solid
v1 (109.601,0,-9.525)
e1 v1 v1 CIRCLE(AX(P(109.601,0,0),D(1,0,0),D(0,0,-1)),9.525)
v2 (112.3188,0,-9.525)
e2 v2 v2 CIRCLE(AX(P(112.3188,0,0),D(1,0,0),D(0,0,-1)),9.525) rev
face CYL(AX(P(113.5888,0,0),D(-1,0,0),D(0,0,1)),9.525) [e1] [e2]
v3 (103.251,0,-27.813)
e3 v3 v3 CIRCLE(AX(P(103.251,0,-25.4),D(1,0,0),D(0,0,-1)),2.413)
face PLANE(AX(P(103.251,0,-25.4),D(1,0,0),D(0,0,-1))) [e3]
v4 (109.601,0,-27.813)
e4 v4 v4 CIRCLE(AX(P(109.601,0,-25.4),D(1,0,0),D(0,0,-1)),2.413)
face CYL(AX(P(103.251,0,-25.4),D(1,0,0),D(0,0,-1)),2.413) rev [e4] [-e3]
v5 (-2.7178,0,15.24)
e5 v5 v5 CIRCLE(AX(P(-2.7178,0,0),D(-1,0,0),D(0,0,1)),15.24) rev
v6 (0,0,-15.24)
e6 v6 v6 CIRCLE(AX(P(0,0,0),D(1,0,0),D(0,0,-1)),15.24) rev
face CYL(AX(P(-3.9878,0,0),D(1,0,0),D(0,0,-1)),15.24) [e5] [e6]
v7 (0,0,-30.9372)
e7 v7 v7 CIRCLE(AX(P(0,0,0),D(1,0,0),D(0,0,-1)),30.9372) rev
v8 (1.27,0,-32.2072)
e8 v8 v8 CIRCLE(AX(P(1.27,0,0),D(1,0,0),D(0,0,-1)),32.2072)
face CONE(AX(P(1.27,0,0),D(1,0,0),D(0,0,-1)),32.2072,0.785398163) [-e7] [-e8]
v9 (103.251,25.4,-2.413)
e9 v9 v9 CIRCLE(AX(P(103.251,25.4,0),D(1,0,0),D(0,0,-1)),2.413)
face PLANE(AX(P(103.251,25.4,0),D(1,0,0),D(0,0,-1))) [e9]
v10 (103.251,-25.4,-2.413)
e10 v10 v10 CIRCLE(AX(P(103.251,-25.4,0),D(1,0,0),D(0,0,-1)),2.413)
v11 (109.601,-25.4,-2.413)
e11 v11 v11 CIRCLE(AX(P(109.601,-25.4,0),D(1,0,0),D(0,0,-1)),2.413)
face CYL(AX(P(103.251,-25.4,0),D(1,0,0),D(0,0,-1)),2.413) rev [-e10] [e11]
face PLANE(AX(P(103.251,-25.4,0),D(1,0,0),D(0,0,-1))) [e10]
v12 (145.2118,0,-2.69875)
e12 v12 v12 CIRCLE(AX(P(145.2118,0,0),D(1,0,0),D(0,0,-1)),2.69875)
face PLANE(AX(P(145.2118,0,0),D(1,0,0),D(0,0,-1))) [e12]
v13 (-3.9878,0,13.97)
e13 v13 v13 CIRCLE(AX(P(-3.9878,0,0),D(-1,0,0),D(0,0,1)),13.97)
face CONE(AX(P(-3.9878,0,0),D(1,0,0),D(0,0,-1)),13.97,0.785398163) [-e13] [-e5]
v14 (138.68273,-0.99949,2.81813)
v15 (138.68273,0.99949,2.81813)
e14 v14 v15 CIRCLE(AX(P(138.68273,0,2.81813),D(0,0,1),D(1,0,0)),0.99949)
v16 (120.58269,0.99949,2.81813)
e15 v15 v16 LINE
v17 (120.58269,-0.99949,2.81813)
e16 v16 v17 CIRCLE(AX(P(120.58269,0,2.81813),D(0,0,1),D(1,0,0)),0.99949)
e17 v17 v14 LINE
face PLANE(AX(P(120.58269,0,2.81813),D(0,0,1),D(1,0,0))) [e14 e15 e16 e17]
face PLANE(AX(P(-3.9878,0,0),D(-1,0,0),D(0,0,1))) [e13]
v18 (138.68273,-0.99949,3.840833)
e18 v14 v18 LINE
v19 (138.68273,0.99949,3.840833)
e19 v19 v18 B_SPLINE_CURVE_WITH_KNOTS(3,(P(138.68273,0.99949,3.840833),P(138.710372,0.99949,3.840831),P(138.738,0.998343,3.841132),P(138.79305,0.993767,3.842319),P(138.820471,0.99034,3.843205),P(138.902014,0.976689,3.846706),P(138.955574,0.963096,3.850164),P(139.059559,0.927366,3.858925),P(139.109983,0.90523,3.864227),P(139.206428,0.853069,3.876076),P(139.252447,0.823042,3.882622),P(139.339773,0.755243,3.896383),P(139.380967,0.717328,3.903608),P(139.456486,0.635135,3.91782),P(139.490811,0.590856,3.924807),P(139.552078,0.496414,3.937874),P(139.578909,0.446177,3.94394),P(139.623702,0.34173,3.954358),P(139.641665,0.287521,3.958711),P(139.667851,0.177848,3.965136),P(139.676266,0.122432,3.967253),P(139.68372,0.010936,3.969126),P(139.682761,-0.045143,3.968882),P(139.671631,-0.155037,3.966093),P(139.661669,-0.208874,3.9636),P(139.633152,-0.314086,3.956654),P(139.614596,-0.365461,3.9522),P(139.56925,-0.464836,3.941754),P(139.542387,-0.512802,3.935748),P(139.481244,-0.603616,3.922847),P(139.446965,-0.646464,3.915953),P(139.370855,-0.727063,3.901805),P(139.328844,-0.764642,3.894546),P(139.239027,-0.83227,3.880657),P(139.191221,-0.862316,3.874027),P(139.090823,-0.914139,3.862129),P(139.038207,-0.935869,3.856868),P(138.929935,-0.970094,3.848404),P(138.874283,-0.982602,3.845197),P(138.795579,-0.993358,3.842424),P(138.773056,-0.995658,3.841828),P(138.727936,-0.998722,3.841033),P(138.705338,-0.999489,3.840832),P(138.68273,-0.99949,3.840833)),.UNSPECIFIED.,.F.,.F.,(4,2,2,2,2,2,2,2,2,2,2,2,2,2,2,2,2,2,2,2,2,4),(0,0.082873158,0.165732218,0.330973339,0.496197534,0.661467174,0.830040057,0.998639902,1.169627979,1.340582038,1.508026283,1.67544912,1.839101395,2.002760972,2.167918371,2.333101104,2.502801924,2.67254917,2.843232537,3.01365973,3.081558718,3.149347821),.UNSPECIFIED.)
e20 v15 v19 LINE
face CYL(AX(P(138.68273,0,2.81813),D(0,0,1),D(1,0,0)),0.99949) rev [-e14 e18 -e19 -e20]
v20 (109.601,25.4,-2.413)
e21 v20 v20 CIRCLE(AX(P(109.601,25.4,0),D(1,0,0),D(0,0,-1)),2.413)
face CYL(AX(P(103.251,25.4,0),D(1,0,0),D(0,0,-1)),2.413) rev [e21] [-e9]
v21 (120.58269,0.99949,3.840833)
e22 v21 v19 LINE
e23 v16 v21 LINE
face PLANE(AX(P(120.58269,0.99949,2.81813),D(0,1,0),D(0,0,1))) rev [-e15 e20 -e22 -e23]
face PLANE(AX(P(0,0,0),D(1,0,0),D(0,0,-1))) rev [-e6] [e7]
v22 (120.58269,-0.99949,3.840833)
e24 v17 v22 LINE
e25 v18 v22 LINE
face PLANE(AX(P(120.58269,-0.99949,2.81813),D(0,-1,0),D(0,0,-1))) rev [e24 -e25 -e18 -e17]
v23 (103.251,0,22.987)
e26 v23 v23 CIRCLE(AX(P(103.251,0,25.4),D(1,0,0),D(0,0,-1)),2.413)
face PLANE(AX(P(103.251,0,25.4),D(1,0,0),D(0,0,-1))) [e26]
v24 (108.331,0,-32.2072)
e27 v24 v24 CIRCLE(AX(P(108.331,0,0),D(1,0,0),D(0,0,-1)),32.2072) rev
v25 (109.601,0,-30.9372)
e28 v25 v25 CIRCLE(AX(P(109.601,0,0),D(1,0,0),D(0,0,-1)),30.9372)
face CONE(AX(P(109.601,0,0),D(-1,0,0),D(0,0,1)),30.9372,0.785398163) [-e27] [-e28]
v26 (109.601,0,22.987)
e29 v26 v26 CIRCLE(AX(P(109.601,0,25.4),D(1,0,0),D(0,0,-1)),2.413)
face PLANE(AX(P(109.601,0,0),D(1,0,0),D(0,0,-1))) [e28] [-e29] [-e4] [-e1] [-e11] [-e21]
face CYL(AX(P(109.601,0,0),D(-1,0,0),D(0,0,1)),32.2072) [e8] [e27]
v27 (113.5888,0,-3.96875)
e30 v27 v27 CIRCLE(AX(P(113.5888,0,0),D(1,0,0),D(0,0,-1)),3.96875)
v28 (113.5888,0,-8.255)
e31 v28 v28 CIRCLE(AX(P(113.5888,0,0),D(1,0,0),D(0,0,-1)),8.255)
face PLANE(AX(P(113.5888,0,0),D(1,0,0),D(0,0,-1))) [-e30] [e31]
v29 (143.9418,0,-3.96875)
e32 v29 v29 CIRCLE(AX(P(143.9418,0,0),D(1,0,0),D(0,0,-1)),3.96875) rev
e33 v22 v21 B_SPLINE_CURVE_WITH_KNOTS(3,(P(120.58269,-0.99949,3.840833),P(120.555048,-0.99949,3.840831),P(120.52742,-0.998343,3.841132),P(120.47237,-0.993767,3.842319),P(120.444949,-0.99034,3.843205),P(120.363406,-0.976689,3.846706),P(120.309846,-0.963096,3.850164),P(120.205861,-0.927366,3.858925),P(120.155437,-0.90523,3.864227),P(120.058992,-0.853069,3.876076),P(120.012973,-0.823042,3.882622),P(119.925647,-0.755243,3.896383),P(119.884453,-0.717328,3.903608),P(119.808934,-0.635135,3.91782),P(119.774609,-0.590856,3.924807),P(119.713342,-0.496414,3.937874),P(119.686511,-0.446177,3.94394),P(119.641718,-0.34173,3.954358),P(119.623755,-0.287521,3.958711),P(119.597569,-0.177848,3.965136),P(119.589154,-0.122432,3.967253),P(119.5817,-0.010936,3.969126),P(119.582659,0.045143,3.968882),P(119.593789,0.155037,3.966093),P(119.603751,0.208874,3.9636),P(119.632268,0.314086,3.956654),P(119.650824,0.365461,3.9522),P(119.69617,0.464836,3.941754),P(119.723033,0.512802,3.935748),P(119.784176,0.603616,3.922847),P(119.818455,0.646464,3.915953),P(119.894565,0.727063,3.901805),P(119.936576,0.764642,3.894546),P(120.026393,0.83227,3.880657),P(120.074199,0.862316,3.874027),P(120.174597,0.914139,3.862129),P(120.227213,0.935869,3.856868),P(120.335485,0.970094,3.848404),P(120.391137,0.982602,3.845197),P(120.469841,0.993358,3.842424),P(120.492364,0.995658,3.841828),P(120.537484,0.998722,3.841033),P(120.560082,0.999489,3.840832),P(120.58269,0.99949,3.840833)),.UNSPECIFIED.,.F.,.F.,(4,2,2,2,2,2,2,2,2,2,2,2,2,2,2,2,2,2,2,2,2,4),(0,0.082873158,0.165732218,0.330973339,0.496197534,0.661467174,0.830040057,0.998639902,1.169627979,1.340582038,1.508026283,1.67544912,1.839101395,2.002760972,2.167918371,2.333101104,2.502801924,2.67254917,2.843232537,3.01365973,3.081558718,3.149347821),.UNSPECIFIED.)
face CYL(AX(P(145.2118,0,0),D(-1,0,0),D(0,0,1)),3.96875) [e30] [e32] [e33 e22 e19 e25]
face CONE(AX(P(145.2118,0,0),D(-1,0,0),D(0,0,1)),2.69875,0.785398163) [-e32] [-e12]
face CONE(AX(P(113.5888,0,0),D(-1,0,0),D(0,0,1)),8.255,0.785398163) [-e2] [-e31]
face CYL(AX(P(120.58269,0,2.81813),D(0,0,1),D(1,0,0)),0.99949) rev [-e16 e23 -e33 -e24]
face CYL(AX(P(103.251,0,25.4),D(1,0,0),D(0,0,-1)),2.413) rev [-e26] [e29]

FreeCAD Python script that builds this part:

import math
import FreeCAD as App
import Part
import Sketcher
Q = App.Units.Quantity


def edges_at(feature, points):
    """Names of the edges that pass closest to the given points."""
    edges = feature.Shape.Edges
    near = lambda p: min(range(len(edges)), key=lambda i: edges[i].distToShape(Part.Vertex(*p))[0])
    return sorted({f"Edge{near(p) + 1}" for p in points})

doc = App.newDocument("Part")
body = doc.addObject("PartDesign::Body", "Body")

# Sketch on YZ plane
sketch1 = body.newObject("Sketcher::SketchObject", "Sketch")
sketch1.AttachmentSupport = (doc.getObject("YZ_Plane"), [""])
sketch1.MapMode = "FlatFace"
sketch1.addGeometry(Part.Circle(App.Vector(0, 0, 0), App.Vector(0, 0, 1), 32), False)
sketch1.addConstraint(Sketcher.Constraint("Coincident", 0, 3, -1, 1))
sketch1.addConstraint(Sketcher.Constraint("Diameter", 0, Q("2.536 in")))
pad1 = body.newObject("PartDesign::Pad", "Pad")
pad1.Profile = sketch1
pad1.Length = Q("4.315 in")
doc.recompute()

chamfer = body.newObject("PartDesign::Chamfer", "Chamfer")
chamfer.Base = (pad1, edges_at(pad1, [(0, 0, 32.207)]))
chamfer.Size = Q("0.05 in")
doc.recompute()

chamfer2 = body.newObject("PartDesign::Chamfer", "Chamfer001")
chamfer2.Base = (chamfer, edges_at(chamfer, [(109.601, 0, 32.207)]))
chamfer2.Size = Q("0.05 in")

# Sketch on YZ plane
sketch2 = body.newObject("Sketcher::SketchObject", "Sketch001")
sketch2.AttachmentSupport = (doc.getObject("YZ_Plane"), [""])
sketch2.MapMode = "FlatFace"
sketch2.AttachmentOffset = App.Placement(App.Vector(0, 0, 4.315 * 25.4), App.Rotation())
sketch2.addGeometry(Part.Circle(App.Vector(0, 0, 0), App.Vector(0, 0, 1), 10), False)
sketch2.addConstraint(Sketcher.Constraint("Coincident", 0, 3, -1, 1))
sketch2.addConstraint(Sketcher.Constraint("Diameter", 0, Q("0.75 in")))
pad2 = body.newObject("PartDesign::Pad", "Pad001")
pad2.Profile = sketch2
pad2.Length = Q("0.157 in")

# Sketch on YZ plane
sketch3 = body.newObject("Sketcher::SketchObject", "Sketch002")
sketch3.AttachmentSupport = (doc.getObject("YZ_Plane"), [""])
sketch3.MapMode = "FlatFace"
sketch3.AttachmentOffset = App.Placement(App.Vector(0, 0, 4.472 * 25.4), App.Rotation())
sketch3.addGeometry(Part.Circle(App.Vector(0, 0, 0), App.Vector(0, 0, 1), 4), False)
sketch3.addConstraint(Sketcher.Constraint("Coincident", 0, 3, -1, 1))
sketch3.addConstraint(Sketcher.Constraint("Diameter", 0, Q("0.3125 in")))
pad3 = body.newObject("PartDesign::Pad", "Pad002")
pad3.Profile = sketch3
pad3.Length = Q("1.245 in")
doc.recompute()

chamfer3 = body.newObject("PartDesign::Chamfer", "Chamfer002")
chamfer3.Base = (pad3, edges_at(pad3, [(113.589, 0, 9.525)]))
chamfer3.Size = Q("0.05 in")
doc.recompute()

chamfer4 = body.newObject("PartDesign::Chamfer", "Chamfer003")
chamfer4.Base = (chamfer3, edges_at(chamfer3, [(145.212, 0, 3.969)]))
chamfer4.Size = Q("0.05 in")

# Sketch on YZ plane
sketch4 = body.newObject("Sketcher::SketchObject", "Sketch003")
sketch4.AttachmentSupport = (doc.getObject("YZ_Plane"), [""])
sketch4.MapMode = "FlatFace"
sketch4.addGeometry(Part.Circle(App.Vector(0, 0, 0), App.Vector(0, 0, 1), 15), False)
sketch4.addConstraint(Sketcher.Constraint("Coincident", 0, 3, -1, 1))
sketch4.addConstraint(Sketcher.Constraint("Diameter", 0, Q("1.2 in")))
pad4 = body.newObject("PartDesign::Pad", "Pad003")
pad4.Profile = sketch4
pad4.Length = Q("0.157 in")
pad4.Reversed = True
doc.recompute()

chamfer5 = body.newObject("PartDesign::Chamfer", "Chamfer004")
chamfer5.Base = (pad4, edges_at(pad4, [(-3.988, 0, -15.24)]))
chamfer5.Size = Q("0.05 in")

# Sketch on XY plane
sketch5 = body.newObject("Sketcher::SketchObject", "Sketch004")
sketch5.AttachmentSupport = (doc.getObject("XY_Plane"), [""])
sketch5.MapMode = "FlatFace"
sketch5.AttachmentOffset = App.Placement(App.Vector(0, 0, 0.15625 * 25.4), App.Rotation())
sketch5.addGeometry(Part.LineSegment(App.Vector(138.7, 1, 0), App.Vector(120.6, 1, 0)), False)
sketch5.addGeometry(Part.ArcOfCircle(Part.Circle(App.Vector(120.6, 0, 0), App.Vector(0, 0, 1), 1), math.radians(90), math.radians(270)), False)
sketch5.addGeometry(Part.LineSegment(App.Vector(120.6, -1, 0), App.Vector(138.7, -1, 0)), False)
sketch5.addGeometry(Part.ArcOfCircle(Part.Circle(App.Vector(138.7, 0, 0), App.Vector(0, 0, 1), 1), math.radians(-90), math.radians(90)), False)
sketch5.addConstraint(Sketcher.Constraint("Tangent", 0, 2, 1, 1))
sketch5.addConstraint(Sketcher.Constraint("Tangent", 1, 2, 2, 1))
sketch5.addConstraint(Sketcher.Constraint("Tangent", 2, 2, 3, 1))
sketch5.addConstraint(Sketcher.Constraint("Tangent", 3, 2, 0, 1))
sketch5.addConstraint(Sketcher.Constraint("Horizontal", 0))
sketch5.addConstraint(Sketcher.Constraint("Horizontal", 2))
sketch5.addConstraint(Sketcher.Constraint("PointOnObject", 1, 3, -1))
sketch5.addConstraint(Sketcher.Constraint("DistanceX", 0, 2, 0, 1, Q("0.7126 in")))
sketch5.addConstraint(Sketcher.Constraint("Radius", 1, 0.99949))
sketch5.addConstraint(Sketcher.Constraint("DistanceX", -1, 1, 1, 3, 120.58269))
pocket1 = body.newObject("PartDesign::Pocket", "Pocket")
pocket1.Profile = sketch5
pocket1.Length = Q("0.0453 in")

# Sketch on YZ plane
sketch6 = body.newObject("Sketcher::SketchObject", "Sketch005")
sketch6.AttachmentSupport = (doc.getObject("YZ_Plane"), [""])
sketch6.MapMode = "FlatFace"
sketch6.AttachmentOffset = App.Placement(App.Vector(0, 0, 4.315 * 25.4), App.Rotation())
sketch6.addGeometry(Part.Circle(App.Vector(25.4, 0, 0), App.Vector(0, 0, 1), 2.4), False)
sketch6.addGeometry(Part.Circle(App.Vector(0, -25.4, 0), App.Vector(0, 0, 1), 2.4), False)
sketch6.addGeometry(Part.Circle(App.Vector(-25.4, 0, 0), App.Vector(0, 0, 1), 2.4), False)
sketch6.addGeometry(Part.Circle(App.Vector(0, 25.4, 0), App.Vector(0, 0, 1), 2.4), False)
sketch6.addConstraint(Sketcher.Constraint("Equal", 0, 1))
sketch6.addConstraint(Sketcher.Constraint("Equal", 1, 2))
sketch6.addConstraint(Sketcher.Constraint("Equal", 2, 3))
sketch6.addConstraint(Sketcher.Constraint("Symmetric", 0, 3, 2, 3, -1, 1))
sketch6.addConstraint(Sketcher.Constraint("Symmetric", 1, 3, 3, 3, -1, 1))
sketch6.addConstraint(Sketcher.Constraint("PointOnObject", 0, 3, -1))
sketch6.addConstraint(Sketcher.Constraint("PointOnObject", 1, 3, -2))
sketch6.addConstraint(Sketcher.Constraint("Diameter", 0, Q("0.19 in")))
sketch6.addConstraint(Sketcher.Constraint("DistanceX", -1, 1, 0, 3, Q("1 in")))
sketch6.addConstraint(Sketcher.Constraint("DistanceY", 1, 3, -1, 1, Q("1 in")))
pocket2 = body.newObject("PartDesign::Pocket", "Pocket001")
pocket2.Profile = sketch6
pocket2.Length = Q("0.25 in")

doc.recompute()
